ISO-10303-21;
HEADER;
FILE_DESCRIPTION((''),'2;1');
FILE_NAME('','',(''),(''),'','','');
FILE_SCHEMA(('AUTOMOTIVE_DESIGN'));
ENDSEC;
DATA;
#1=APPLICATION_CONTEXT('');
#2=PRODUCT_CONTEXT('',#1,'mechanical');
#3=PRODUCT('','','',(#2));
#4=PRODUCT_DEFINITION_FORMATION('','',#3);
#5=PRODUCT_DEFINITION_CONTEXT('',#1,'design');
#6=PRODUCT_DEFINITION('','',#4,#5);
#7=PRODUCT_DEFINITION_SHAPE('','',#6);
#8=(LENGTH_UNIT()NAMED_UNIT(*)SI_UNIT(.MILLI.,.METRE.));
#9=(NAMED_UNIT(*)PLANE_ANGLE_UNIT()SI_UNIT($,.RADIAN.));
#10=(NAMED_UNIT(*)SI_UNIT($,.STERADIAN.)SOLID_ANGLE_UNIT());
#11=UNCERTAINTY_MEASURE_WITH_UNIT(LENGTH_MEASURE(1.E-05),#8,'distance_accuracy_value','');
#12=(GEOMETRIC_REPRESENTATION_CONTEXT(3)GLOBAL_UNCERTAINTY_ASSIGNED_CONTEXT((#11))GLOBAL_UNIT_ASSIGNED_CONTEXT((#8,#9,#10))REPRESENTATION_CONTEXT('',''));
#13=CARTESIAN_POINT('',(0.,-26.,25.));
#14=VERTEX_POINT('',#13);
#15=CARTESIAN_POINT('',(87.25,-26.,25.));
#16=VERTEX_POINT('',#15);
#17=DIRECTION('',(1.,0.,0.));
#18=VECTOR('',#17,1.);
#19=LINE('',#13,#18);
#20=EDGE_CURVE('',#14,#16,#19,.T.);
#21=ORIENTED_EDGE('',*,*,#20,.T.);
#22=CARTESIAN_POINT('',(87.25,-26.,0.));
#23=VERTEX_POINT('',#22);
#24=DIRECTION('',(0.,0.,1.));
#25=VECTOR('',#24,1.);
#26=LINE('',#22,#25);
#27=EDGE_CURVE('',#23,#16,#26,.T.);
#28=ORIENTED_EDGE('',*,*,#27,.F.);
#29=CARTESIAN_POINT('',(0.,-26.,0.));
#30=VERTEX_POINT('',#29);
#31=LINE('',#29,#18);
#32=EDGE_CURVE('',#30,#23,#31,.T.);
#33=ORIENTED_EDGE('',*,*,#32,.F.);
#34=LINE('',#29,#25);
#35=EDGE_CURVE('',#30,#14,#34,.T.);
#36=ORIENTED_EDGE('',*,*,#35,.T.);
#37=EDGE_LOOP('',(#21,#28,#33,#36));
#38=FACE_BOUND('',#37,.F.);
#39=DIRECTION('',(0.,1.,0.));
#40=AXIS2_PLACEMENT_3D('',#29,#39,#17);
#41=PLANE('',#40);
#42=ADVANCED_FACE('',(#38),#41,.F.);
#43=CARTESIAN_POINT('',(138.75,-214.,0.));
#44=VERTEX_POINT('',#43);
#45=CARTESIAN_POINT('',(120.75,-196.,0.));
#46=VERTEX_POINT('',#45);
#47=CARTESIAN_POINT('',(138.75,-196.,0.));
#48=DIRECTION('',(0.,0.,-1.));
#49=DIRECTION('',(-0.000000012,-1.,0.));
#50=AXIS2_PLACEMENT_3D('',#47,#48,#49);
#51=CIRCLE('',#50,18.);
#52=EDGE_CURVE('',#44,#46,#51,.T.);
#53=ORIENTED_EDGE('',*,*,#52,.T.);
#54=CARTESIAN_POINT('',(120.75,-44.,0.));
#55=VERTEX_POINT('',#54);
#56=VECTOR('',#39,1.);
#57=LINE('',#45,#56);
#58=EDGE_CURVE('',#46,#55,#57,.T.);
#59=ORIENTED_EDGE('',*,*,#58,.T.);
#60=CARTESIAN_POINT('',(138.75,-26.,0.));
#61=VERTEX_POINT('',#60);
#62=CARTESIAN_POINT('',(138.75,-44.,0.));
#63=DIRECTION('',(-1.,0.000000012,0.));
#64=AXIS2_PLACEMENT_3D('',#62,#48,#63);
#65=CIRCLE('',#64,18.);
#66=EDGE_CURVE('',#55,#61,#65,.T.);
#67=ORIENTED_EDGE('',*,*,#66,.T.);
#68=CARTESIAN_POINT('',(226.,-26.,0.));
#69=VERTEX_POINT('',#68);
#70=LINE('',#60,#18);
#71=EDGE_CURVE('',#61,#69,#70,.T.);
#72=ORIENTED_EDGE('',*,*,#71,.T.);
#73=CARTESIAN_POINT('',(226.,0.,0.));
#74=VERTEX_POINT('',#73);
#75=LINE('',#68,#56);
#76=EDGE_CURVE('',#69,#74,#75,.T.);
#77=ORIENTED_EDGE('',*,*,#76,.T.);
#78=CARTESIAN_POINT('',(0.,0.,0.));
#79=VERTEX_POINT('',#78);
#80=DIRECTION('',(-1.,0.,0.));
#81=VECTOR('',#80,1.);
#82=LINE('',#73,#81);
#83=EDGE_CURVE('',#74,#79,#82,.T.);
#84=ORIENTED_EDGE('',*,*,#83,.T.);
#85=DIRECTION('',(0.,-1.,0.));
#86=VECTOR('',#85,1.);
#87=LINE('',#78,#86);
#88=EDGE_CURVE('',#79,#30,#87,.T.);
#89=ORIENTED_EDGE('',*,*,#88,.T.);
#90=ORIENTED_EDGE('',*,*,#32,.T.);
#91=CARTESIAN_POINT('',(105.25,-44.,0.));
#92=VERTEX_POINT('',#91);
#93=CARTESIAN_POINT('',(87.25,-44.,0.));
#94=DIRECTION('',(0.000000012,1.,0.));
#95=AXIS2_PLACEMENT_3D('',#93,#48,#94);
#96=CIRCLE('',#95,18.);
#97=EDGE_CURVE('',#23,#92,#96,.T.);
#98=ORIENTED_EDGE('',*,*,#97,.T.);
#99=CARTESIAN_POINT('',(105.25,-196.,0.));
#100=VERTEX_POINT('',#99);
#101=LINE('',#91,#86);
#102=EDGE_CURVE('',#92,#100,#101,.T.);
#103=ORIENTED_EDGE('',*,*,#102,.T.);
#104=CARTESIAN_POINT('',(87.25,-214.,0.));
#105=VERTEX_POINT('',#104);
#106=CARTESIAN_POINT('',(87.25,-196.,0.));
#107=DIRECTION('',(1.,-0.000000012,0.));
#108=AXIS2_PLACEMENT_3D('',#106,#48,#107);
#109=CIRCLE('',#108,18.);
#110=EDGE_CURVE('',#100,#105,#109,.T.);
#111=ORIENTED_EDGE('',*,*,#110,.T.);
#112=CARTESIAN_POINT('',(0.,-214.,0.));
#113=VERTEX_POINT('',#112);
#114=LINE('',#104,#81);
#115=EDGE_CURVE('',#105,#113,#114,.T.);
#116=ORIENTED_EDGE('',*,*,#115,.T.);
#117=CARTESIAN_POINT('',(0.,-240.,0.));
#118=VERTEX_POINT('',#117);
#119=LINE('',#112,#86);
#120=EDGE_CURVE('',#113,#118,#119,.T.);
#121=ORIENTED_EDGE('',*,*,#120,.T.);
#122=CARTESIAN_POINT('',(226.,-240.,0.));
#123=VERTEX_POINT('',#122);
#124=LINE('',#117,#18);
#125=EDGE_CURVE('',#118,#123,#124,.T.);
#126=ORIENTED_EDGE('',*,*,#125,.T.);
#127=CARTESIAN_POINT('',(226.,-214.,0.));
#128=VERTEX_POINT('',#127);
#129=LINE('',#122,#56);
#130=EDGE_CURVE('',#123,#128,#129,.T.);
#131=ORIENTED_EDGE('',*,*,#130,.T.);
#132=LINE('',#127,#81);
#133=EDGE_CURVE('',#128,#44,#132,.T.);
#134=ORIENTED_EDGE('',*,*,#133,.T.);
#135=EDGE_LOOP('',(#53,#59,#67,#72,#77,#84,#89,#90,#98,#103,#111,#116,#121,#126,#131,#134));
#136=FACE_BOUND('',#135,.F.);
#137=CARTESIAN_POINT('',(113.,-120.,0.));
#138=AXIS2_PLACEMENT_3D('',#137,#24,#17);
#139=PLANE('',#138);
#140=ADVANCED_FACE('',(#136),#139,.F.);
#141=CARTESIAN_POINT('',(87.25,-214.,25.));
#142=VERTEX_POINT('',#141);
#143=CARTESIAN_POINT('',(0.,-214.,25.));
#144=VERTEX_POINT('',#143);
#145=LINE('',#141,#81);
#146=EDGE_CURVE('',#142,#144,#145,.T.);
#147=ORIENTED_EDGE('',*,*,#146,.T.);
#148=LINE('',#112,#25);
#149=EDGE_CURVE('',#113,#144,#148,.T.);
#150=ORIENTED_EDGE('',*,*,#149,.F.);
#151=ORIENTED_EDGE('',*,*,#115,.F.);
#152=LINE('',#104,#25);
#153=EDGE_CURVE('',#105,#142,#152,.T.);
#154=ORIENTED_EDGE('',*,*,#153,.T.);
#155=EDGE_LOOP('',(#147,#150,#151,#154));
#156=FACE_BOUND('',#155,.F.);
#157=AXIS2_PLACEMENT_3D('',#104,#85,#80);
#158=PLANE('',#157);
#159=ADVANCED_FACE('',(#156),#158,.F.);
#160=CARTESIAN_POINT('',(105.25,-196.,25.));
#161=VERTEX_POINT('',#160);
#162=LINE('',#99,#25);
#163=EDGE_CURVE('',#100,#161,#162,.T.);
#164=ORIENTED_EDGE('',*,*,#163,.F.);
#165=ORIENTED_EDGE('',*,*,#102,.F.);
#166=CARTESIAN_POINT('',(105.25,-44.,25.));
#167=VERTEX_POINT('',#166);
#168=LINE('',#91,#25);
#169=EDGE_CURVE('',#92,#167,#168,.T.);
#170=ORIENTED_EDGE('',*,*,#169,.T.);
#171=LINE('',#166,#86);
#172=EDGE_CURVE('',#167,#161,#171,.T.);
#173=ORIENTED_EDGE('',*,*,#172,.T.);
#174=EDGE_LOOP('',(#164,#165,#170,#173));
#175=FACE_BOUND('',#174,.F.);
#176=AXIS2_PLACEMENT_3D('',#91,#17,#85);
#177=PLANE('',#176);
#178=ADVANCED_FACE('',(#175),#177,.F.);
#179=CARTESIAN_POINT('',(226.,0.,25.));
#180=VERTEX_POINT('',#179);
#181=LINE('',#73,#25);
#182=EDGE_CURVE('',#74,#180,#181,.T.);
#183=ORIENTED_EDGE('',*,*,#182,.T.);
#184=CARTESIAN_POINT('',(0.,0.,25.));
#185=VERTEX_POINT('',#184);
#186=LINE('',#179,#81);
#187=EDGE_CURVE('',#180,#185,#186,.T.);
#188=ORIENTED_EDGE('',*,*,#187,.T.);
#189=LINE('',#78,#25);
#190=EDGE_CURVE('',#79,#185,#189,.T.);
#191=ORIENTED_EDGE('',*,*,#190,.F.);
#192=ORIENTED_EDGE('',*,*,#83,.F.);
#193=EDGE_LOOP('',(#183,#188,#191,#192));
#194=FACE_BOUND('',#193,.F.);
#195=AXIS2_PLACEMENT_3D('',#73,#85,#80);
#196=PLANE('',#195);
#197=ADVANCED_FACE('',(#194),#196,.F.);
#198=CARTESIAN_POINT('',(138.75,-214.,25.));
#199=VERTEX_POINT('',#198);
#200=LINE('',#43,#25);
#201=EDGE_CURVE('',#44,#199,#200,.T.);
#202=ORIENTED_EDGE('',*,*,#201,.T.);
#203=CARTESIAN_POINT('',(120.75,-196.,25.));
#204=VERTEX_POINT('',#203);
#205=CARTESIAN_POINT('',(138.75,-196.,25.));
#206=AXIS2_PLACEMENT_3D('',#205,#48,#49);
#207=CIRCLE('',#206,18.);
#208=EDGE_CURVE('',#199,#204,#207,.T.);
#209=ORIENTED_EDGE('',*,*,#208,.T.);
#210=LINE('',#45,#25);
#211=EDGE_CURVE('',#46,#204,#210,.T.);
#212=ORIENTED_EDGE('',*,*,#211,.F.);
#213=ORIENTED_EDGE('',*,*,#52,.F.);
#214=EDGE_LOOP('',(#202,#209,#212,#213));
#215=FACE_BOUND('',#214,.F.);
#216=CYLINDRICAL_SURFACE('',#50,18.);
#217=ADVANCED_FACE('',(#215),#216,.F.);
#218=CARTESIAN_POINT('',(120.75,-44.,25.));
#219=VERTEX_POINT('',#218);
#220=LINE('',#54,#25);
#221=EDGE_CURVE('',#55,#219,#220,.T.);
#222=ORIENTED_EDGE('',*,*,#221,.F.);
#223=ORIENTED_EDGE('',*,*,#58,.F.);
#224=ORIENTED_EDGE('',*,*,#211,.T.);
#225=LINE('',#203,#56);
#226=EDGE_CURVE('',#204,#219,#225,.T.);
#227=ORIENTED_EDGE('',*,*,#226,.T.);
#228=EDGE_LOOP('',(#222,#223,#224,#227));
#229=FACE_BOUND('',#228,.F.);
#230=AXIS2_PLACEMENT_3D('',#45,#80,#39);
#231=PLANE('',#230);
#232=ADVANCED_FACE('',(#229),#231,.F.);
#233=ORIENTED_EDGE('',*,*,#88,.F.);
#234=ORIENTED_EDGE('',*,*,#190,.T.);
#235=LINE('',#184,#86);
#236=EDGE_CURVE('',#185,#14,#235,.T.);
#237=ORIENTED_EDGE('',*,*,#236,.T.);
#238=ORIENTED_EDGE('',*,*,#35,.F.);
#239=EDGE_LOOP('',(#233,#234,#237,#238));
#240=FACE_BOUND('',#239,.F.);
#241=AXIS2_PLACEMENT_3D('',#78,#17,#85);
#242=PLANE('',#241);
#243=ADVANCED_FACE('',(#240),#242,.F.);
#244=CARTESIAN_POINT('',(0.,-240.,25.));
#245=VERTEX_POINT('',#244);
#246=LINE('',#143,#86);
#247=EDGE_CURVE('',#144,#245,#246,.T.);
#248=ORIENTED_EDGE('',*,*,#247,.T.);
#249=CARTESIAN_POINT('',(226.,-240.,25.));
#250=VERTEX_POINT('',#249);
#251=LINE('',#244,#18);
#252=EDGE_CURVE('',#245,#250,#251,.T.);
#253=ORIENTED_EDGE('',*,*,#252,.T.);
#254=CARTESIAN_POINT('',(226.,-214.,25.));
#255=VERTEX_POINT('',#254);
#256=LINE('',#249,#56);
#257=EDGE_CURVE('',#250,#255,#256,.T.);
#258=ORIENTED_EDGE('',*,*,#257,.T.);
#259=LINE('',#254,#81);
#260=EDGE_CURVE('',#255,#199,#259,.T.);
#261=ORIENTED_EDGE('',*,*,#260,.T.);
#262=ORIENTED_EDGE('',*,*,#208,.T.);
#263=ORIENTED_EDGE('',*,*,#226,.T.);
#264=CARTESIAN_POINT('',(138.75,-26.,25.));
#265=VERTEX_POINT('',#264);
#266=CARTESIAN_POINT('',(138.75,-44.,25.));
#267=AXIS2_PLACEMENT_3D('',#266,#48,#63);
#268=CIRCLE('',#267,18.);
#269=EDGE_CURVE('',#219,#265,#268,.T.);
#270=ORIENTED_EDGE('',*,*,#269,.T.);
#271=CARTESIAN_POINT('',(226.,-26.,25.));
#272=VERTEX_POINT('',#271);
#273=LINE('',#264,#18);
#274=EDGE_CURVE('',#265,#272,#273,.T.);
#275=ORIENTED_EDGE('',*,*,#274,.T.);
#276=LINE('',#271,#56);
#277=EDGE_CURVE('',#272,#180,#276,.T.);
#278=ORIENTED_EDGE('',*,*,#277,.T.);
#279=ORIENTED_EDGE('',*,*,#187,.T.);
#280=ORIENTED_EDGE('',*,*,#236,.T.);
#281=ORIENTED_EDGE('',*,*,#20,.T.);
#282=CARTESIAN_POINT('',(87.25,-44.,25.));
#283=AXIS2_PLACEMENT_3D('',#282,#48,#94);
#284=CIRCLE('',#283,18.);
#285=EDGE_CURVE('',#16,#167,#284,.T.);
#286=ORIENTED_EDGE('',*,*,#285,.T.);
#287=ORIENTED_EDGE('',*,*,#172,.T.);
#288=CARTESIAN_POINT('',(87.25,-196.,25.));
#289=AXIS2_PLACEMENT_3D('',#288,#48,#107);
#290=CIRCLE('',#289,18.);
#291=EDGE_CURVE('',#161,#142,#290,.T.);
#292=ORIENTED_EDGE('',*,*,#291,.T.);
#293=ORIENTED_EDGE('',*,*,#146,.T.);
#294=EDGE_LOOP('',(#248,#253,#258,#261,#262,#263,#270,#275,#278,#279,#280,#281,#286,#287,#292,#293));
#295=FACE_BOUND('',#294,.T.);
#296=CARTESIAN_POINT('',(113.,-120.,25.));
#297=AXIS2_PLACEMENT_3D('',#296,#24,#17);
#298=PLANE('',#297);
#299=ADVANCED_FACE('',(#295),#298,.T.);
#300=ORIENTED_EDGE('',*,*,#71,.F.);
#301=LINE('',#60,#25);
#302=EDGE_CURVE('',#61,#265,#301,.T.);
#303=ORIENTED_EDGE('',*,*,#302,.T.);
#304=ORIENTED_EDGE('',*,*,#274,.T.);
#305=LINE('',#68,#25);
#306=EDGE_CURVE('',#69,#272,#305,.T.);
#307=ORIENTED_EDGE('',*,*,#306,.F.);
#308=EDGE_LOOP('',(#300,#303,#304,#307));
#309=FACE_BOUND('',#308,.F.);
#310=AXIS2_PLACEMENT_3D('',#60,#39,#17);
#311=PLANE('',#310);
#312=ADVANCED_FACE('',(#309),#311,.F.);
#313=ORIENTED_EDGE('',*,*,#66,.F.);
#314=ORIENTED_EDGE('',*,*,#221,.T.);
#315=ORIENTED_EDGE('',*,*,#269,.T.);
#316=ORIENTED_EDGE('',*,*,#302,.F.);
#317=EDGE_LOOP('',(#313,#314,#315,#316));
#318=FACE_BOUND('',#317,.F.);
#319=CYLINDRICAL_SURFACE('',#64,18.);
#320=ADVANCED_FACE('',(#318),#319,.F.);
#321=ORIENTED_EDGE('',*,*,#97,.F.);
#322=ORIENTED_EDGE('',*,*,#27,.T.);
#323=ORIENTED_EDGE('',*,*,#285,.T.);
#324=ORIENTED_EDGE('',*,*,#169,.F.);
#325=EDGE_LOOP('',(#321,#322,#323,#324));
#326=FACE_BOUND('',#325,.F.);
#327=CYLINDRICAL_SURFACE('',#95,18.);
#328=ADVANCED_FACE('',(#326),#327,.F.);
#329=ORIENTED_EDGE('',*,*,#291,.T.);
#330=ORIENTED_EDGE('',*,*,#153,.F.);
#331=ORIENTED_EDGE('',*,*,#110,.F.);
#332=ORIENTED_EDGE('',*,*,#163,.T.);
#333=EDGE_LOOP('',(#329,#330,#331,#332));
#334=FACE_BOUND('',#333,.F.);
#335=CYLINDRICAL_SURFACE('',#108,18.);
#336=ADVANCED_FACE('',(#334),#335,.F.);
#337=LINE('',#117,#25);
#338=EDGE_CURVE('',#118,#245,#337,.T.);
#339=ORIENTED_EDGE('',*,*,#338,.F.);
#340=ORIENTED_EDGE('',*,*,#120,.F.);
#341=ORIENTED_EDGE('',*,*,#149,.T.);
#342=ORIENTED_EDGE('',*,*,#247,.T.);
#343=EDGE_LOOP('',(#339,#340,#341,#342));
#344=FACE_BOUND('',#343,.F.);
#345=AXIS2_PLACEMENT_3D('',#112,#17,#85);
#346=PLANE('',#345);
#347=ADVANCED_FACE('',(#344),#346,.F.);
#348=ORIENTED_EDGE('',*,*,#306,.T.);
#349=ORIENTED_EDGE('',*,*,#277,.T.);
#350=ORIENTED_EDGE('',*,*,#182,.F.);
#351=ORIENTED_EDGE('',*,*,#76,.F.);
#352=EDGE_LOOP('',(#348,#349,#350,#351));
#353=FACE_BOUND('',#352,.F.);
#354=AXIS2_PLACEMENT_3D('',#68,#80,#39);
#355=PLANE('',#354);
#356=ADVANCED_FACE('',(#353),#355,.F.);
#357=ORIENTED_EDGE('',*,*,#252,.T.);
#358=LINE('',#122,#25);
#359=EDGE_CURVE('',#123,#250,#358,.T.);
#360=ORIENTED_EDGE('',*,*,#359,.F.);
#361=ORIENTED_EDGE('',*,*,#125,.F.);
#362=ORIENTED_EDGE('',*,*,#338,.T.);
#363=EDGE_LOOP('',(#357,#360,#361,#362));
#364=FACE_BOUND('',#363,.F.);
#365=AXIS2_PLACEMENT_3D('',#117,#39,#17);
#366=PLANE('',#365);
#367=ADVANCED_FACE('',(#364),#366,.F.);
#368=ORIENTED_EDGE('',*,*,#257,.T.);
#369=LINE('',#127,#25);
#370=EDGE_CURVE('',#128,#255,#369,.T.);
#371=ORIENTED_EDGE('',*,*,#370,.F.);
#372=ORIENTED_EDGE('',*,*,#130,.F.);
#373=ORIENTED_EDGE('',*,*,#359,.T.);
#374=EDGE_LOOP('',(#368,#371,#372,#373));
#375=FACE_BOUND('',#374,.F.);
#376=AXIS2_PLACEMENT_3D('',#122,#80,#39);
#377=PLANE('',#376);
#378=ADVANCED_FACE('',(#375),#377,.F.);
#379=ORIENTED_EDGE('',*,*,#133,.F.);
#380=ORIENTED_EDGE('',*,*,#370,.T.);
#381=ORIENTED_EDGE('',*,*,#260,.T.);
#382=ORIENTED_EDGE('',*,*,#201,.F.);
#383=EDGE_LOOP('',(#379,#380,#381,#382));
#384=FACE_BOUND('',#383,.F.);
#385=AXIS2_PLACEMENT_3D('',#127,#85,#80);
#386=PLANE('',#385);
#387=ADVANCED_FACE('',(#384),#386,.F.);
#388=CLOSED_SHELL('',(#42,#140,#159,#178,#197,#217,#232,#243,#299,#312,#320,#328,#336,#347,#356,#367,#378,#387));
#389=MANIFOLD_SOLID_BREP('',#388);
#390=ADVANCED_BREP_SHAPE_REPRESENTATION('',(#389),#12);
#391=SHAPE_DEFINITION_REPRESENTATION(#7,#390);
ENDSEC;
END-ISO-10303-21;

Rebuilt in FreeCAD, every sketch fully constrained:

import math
import FreeCAD as App
import Part
import Sketcher

doc = App.newDocument("Part")
body = doc.addObject("PartDesign::Body", "Body")

# Sketch on XY plane
sketch1 = body.newObject("Sketcher::SketchObject", "Sketch")
sketch1.AttachmentSupport = (doc.getObject("XY_Plane"), [""])
sketch1.MapMode = "FlatFace"
sketch1.addGeometry(Part.LineSegment(App.Vector(226, 0, 0), App.Vector(0, 0, 0)), False)
sketch1.addGeometry(Part.LineSegment(App.Vector(0, 0, 0), App.Vector(0, -26, 0)), False)
sketch1.addGeometry(Part.LineSegment(App.Vector(0, -26, 0), App.Vector(87, -26, 0)), False)
sketch1.addGeometry(Part.ArcOfCircle(Part.Circle(App.Vector(87, -44, 0), App.Vector(0, 0, 1), 18), math.radians(0), math.radians(90)), False)
sketch1.addGeometry(Part.LineSegment(App.Vector(105, -44, 0), App.Vector(105, -196, 0)), False)
sketch1.addGeometry(Part.ArcOfCircle(Part.Circle(App.Vector(87, -196, 0), App.Vector(0, 0, 1), 18), math.radians(-90), math.radians(0)), False)
sketch1.addGeometry(Part.LineSegment(App.Vector(87, -214, 0), App.Vector(0, -214, 0)), False)
sketch1.addGeometry(Part.LineSegment(App.Vector(0, -214, 0), App.Vector(0, -240, 0)), False)
sketch1.addGeometry(Part.LineSegment(App.Vector(0, -240, 0), App.Vector(226, -240, 0)), False)
sketch1.addGeometry(Part.LineSegment(App.Vector(226, -240, 0), App.Vector(226, -214, 0)), False)
sketch1.addGeometry(Part.LineSegment(App.Vector(226, -214, 0), App.Vector(139, -214, 0)), False)
sketch1.addGeometry(Part.ArcOfCircle(Part.Circle(App.Vector(139, -196, 0), App.Vector(0, 0, 1), 18), math.radians(-180), math.radians(-90)), False)
sketch1.addGeometry(Part.LineSegment(App.Vector(121, -196, 0), App.Vector(121, -44, 0)), False)
sketch1.addGeometry(Part.ArcOfCircle(Part.Circle(App.Vector(139, -44, 0), App.Vector(0, 0, 1), 18), math.radians(90), math.radians(180)), False)
sketch1.addGeometry(Part.LineSegment(App.Vector(139, -26, 0), App.Vector(226, -26, 0)), False)
sketch1.addGeometry(Part.LineSegment(App.Vector(226, -26, 0), App.Vector(226, 0, 0)), False)
sketch1.addConstraint(Sketcher.Constraint("Coincident", 0, 2, 1, 1))
sketch1.addConstraint(Sketcher.Constraint("Coincident", 1, 2, 2, 1))
sketch1.addConstraint(Sketcher.Constraint("Tangent", 2, 2, 3, 2))
sketch1.addConstraint(Sketcher.Constraint("Tangent", 3, 1, 4, 1))
sketch1.addConstraint(Sketcher.Constraint("Tangent", 4, 2, 5, 2))
sketch1.addConstraint(Sketcher.Constraint("Tangent", 5, 1, 6, 1))
sketch1.addConstraint(Sketcher.Constraint("Coincident", 6, 2, 7, 1))
sketch1.addConstraint(Sketcher.Constraint("Coincident", 7, 2, 8, 1))
sketch1.addConstraint(Sketcher.Constraint("Coincident", 8, 2, 9, 1))
sketch1.addConstraint(Sketcher.Constraint("Coincident", 9, 2, 10, 1))
sketch1.addConstraint(Sketcher.Constraint("Tangent", 10, 2, 11, 2))
sketch1.addConstraint(Sketcher.Constraint("Tangent", 11, 1, 12, 1))
sketch1.addConstraint(Sketcher.Constraint("Tangent", 12, 2, 13, 2))
sketch1.addConstraint(Sketcher.Constraint("Tangent", 13, 1, 14, 1))
sketch1.addConstraint(Sketcher.Constraint("Coincident", 14, 2, 15, 1))
sketch1.addConstraint(Sketcher.Constraint("Coincident", 15, 2, 0, 1))
sketch1.addConstraint(Sketcher.Constraint("Horizontal", 0))
sketch1.addConstraint(Sketcher.Constraint("Vertical", 1))
sketch1.addConstraint(Sketcher.Constraint("Horizontal", 2))
sketch1.addConstraint(Sketcher.Constraint("Vertical", 4))
sketch1.addConstraint(Sketcher.Constraint("Horizontal", 6))
sketch1.addConstraint(Sketcher.Constraint("Vertical", 7))
sketch1.addConstraint(Sketcher.Constraint("Horizontal", 8))
sketch1.addConstraint(Sketcher.Constraint("Vertical", 9))
sketch1.addConstraint(Sketcher.Constraint("Horizontal", 10))
sketch1.addConstraint(Sketcher.Constraint("Vertical", 12))
sketch1.addConstraint(Sketcher.Constraint("Horizontal", 14))
sketch1.addConstraint(Sketcher.Constraint("Vertical", 15))
sketch1.addConstraint(Sketcher.Constraint("Coincident", 0, 2, -1, 1))
sketch1.addConstraint(Sketcher.Constraint("Equal", 3, 5))
sketch1.addConstraint(Sketcher.Constraint("Equal", 5, 11))
sketch1.addConstraint(Sketcher.Constraint("Equal", 11, 13))
sketch1.addConstraint(Sketcher.Constraint("PointOnObject", 6, 2, -2))
sketch1.addConstraint(Sketcher.Constraint("Horizontal", 5, 3, 11, 3))
sketch1.addConstraint(Sketcher.Constraint("Horizontal", 3, 3, 13, 3))
sketch1.addConstraint(Sketcher.Constraint("Vertical", 9, 2, 14, 2))
sketch1.addConstraint(Sketcher.Constraint("Equal", 6, 10))
sketch1.addConstraint(Sketcher.Constraint("Equal", 1, 7))
sketch1.addConstraint(Sketcher.Constraint("Radius", 3, 18.0))
sketch1.addConstraint(Sketcher.Constraint("DistanceX", 0, 2, 0, 1, 226.0))
sketch1.addConstraint(Sketcher.Constraint("DistanceY", 1, 2, 1, 1, 26.0))
sketch1.addConstraint(Sketcher.Constraint("DistanceY", 4, 2, 4, 1, 152.0))
sketch1.addConstraint(Sketcher.Constraint("DistanceX", 2, 1, 2, 2, 87.25))
pad1 = body.newObject("PartDesign::Pad", "Pad")
pad1.Profile = sketch1
pad1.Length = 25

doc.recompute()
